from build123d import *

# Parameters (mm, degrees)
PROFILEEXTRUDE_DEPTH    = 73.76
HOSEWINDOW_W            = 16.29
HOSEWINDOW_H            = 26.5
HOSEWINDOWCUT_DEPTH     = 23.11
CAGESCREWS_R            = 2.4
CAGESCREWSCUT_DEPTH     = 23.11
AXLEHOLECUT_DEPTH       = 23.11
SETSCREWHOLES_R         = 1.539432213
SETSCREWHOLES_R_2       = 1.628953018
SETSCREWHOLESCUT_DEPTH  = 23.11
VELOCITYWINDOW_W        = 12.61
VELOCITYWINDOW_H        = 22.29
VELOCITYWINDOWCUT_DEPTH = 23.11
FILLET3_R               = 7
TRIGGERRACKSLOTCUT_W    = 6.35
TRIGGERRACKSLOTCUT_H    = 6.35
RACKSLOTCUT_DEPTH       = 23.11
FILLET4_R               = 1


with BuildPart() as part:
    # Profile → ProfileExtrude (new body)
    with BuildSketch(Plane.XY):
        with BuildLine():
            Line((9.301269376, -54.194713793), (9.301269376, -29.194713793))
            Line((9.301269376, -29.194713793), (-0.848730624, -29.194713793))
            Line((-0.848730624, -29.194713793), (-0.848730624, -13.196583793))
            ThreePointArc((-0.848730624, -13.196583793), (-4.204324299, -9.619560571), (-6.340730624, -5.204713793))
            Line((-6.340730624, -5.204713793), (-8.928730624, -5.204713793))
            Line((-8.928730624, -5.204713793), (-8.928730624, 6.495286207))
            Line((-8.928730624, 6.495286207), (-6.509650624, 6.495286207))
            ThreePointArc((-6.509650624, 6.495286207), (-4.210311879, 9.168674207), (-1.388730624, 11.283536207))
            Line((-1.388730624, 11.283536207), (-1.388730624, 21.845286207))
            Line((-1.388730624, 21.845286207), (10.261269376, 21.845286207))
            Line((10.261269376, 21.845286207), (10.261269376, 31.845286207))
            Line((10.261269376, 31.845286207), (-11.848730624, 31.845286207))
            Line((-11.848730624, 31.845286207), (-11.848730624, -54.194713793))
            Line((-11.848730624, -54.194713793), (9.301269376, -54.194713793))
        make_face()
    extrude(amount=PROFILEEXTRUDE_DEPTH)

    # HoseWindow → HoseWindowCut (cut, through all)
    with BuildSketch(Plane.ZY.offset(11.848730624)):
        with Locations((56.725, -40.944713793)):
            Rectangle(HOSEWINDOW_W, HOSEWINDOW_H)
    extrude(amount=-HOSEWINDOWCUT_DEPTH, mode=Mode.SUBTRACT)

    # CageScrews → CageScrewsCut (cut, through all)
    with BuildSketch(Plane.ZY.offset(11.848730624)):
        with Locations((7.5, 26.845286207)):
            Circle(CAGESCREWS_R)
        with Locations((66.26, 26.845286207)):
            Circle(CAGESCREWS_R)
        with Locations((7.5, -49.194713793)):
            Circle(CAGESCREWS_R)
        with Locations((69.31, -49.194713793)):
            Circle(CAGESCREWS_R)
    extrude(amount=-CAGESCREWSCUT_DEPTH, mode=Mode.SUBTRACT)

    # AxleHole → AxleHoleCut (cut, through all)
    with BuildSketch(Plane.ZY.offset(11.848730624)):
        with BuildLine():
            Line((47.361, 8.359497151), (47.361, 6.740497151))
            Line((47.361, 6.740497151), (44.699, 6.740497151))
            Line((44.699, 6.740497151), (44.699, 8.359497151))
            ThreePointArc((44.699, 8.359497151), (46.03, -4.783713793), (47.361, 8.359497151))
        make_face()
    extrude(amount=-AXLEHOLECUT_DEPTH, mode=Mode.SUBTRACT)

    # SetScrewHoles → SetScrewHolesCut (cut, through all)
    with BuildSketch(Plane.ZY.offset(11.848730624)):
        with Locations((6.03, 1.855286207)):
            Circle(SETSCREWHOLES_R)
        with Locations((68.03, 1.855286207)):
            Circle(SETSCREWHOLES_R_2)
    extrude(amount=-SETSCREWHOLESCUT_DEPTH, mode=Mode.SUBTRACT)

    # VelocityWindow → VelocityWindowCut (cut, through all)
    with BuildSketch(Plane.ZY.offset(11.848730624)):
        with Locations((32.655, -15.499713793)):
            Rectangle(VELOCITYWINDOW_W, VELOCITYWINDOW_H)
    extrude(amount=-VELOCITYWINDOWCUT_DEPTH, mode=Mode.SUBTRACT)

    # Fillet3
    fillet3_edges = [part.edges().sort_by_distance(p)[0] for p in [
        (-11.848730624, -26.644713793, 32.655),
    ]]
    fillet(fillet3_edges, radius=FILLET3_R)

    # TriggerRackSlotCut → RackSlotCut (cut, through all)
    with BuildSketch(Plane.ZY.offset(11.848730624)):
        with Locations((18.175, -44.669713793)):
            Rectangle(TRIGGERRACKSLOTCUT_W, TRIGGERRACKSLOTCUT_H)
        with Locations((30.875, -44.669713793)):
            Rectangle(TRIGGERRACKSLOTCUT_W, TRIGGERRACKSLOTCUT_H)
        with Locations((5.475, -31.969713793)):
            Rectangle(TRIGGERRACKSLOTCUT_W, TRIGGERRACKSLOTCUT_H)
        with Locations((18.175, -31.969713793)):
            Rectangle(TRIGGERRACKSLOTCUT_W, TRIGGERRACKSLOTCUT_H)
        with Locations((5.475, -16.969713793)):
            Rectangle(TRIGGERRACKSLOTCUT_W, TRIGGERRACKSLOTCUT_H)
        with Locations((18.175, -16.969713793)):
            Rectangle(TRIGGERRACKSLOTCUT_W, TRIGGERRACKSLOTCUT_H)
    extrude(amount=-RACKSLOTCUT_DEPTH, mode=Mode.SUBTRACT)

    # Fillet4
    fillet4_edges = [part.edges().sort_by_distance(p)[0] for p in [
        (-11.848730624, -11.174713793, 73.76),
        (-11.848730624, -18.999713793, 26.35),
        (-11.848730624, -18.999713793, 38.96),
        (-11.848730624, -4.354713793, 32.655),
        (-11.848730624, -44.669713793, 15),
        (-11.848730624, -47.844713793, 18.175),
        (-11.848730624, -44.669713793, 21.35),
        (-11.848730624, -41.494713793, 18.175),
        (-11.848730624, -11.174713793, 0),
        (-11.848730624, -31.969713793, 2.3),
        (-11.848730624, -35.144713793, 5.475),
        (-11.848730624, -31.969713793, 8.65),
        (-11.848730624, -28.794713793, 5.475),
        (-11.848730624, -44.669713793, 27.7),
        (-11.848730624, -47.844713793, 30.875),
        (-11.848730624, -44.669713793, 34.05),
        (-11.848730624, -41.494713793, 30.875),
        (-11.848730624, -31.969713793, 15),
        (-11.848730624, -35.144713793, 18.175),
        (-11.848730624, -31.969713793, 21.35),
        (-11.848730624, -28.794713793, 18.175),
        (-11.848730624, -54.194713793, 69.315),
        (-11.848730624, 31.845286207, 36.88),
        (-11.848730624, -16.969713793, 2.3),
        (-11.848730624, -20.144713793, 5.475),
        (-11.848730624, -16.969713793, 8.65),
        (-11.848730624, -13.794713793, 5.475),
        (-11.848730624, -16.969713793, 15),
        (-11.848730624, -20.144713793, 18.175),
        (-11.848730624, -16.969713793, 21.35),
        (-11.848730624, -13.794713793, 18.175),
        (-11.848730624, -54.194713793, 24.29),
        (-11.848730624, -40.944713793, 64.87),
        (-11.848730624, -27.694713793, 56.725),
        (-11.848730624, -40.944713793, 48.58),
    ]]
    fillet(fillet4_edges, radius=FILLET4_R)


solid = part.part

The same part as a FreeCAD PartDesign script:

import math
import FreeCAD as App
import Part
import Sketcher
from FreeCAD import Vector
Q = App.Units.Quantity


def edges_at(feature, points):
    """Names of the edges that pass closest to the given points."""
    edges = feature.Shape.Edges
    near = lambda p: min(range(len(edges)), key=lambda i: edges[i].distToShape(Part.Vertex(*p))[0])
    return sorted({f"Edge{near(p) + 1}" for p in points})


def add_polygon(sketch, points):
    """Adds a closed chain of lines whose ends are joined by coincident constraints."""
    first, n = sketch.GeometryCount, len(points)
    for a, b in zip(points, points[1:] + points[:1]):
        sketch.addGeometry(Part.LineSegment(App.Vector(*a, 0), App.Vector(*b, 0)), False)
    for i in range(n):
        sketch.addConstraint(Sketcher.Constraint("Coincident", first + i, 2, first + (i + 1) % n, 1))

doc = App.newDocument("Part")
params = doc.addObject("Spreadsheet::Sheet", "Params")
for row, (alias, value) in enumerate([
    ("sketch1_height", "25 mm"),
    ("sketch1_height2", "10 mm"),
    ("sketch1_height3", "11.7 mm"),
    ("sketch1_width", "10.15 mm"),
    ("sketch1_width2", "11.65 mm"),
    ("pad1_length", "73.76 mm"),
    ("sketch2_width", "26.5 mm"),
    ("sketch2_height", "16.29 mm"),
    ("sketch3_diameter", "4.8 mm"),
    ("sketch6_width", "22.29 mm"),
    ("sketch6_height", "12.61 mm"),
    ("fillet_radius", "7 mm"),
    ("sketch7_width", "6.35 mm"),
    ("fillet2_radius", "1 mm"),
], start=1):
    params.set(f"A{row}", alias)
    params.set(f"B{row}", "=" + value)
    params.setAlias(f"B{row}", alias)

body = doc.addObject("PartDesign::Body", "Body")

# Sketch on XY plane
sketch1 = body.newObject("Sketcher::SketchObject", "Sketch")
sketch1.AttachmentSupport = (doc.getObject("XY_Plane"), [""])
sketch1.MapMode = "FlatFace"
sketch1.addGeometry([
    Part.LineSegment(Vector(9.301269, -54.194714, 0), Vector(9.301269, -29.194714, 0)),  # 0
    Part.LineSegment(Vector(9.301269, -29.194714, 0), Vector(-0.848731, -29.194714, 0)),  # 1
    Part.LineSegment(Vector(-0.848731, -29.194714, 0), Vector(-0.848731, -13.196584, 0)),  # 2
    Part.ArcOfCircle(Part.Circle(Vector(9.197308, -0.409981, 0), Vector(0, 0, 1), 16.261), math.radians(-162.850803), math.radians(-128.155625)),  # 3
    Part.LineSegment(Vector(-6.340731, -5.204714, 0), Vector(-8.928731, -5.204714, 0)),  # 4
    Part.LineSegment(Vector(-8.928731, -5.204714, 0), Vector(-8.928731, 6.495286, 0)),  # 5
    Part.LineSegment(Vector(-8.928731, 6.495286, 0), Vector(-6.509651, 6.495286, 0)),  # 6
    Part.ArcOfCircle(Part.Circle(Vector(6.895676, -2.708917, 0), Vector(0, 0, 1), 16.261), math.radians(120.628184), math.radians(145.526201)),  # 7
    Part.LineSegment(Vector(-1.388731, 11.283536, 0), Vector(-1.388731, 21.845286, 0)),  # 8
    Part.LineSegment(Vector(-1.388731, 21.845286, 0), Vector(10.261269, 21.845286, 0)),  # 9
    Part.LineSegment(Vector(10.261269, 21.845286, 0), Vector(10.261269, 31.845286, 0)),  # 10
    Part.LineSegment(Vector(10.261269, 31.845286, 0), Vector(-11.848731, 31.845286, 0)),  # 11
    Part.LineSegment(Vector(-11.848731, 31.845286, 0), Vector(-11.848731, -54.194714, 0)),  # 12
    Part.LineSegment(Vector(-11.848731, -54.194714, 0), Vector(9.301269, -54.194714, 0)),  # 13
], False)
sketch1.addConstraint([
    Sketcher.Constraint("Coincident", 0, 2, 1, 1),
    Sketcher.Constraint("Coincident", 1, 2, 2, 1),
    Sketcher.Constraint("Coincident", 2, 2, 3, 2),
    Sketcher.Constraint("Coincident", 3, 1, 4, 1),
    Sketcher.Constraint("Coincident", 4, 2, 5, 1),
    Sketcher.Constraint("Coincident", 5, 2, 6, 1),
    Sketcher.Constraint("Coincident", 6, 2, 7, 2),
    Sketcher.Constraint("Coincident", 7, 1, 8, 1),
    Sketcher.Constraint("Coincident", 8, 2, 9, 1),
    Sketcher.Constraint("Coincident", 9, 2, 10, 1),
    Sketcher.Constraint("Coincident", 10, 2, 11, 1),
    Sketcher.Constraint("Coincident", 11, 2, 12, 1),
    Sketcher.Constraint("Coincident", 12, 2, 13, 1),
    Sketcher.Constraint("Coincident", 13, 2, 0, 1),
    Sketcher.Constraint("Vertical", 0),
    Sketcher.Constraint("Horizontal", 1),
    Sketcher.Constraint("Vertical", 2),
    Sketcher.Constraint("Horizontal", 4),
    Sketcher.Constraint("Vertical", 5),
    Sketcher.Constraint("Horizontal", 6),
    Sketcher.Constraint("Vertical", 8),
    Sketcher.Constraint("Horizontal", 9),
    Sketcher.Constraint("Vertical", 10),
    Sketcher.Constraint("Horizontal", 11),
    Sketcher.Constraint("Vertical", 12),
    Sketcher.Constraint("Horizontal", 13),
    Sketcher.Constraint("Equal", 3, 7),
    Sketcher.Constraint("DistanceY", 0, 1, 0, 2, Q("25 mm")),
    Sketcher.Constraint("DistanceY", 10, 1, 10, 2, Q("10 mm")),
    Sketcher.Constraint("DistanceY", 5, 1, 5, 2, Q("11.7 mm")),
    Sketcher.Constraint("Radius", 3, Q("16.261 mm")),
    Sketcher.Constraint("DistanceX", 12, 2, 1, 2, Q("11 mm")),
    Sketcher.Constraint("DistanceX", 1, 2, 1, 1, Q("10.15 mm")),
    Sketcher.Constraint("DistanceX", 9, 1, 9, 2, Q("11.65 mm")),
    Sketcher.Constraint("DistanceX", 11, 2, 11, 1, Q("22.11 mm")),
    Sketcher.Constraint("DistanceY", 12, 2, 12, 1, Q("86.04 mm")),
    Sketcher.Constraint("DistanceX", 4, 2, 4, 1, Q("2.588 mm")),
    Sketcher.Constraint("DistanceY", 1, 2, 3, 1, Q("23.99 mm")),
    Sketcher.Constraint("DistanceX", 4, 2, 2, 2, Q("8.08 mm")),
    Sketcher.Constraint("DistanceX", 6, 1, 6, 2, Q("2.41908 mm")),
    Sketcher.Constraint("DistanceY", 2, 1, 2, 2, Q("15.99813 mm")),
    Sketcher.Constraint("DistanceY", 8, 1, 8, 2, Q("10.56175 mm")),
    Sketcher.Constraint("DistanceX", -1, 1, 3, 3, Q("9.197308 mm")),
    Sketcher.Constraint("DistanceY", 3, 3, -1, 1, Q("0.409981 mm")),
])
sketch1.setExpression("Constraints[27]", "Params.sketch1_height")
sketch1.setExpression("Constraints[28]", "Params.sketch1_height2")
sketch1.setExpression("Constraints[29]", "Params.sketch1_height3")
sketch1.setExpression("Constraints[32]", "Params.sketch1_width")
sketch1.setExpression("Constraints[33]", "Params.sketch1_width2")
pad1 = body.newObject("PartDesign::Pad", "Pad")
pad1.Profile = sketch1
pad1.setExpression("Length", "Params.pad1_length")

# Sketch on YZ plane
sketch2 = body.newObject("Sketcher::SketchObject", "Sketch001")
sketch2.AttachmentSupport = (doc.getObject("YZ_Plane"), [""])
sketch2.MapMode = "FlatFace"
sketch2.AttachmentOffset = App.Placement(Vector(0, 0, -11.848731), App.Rotation())
add_polygon(sketch2, [(-27.694714, 48.58), (-54.194714, 48.58), (-54.194714, 64.87), (-27.694714, 64.87)])  # lines 0-3
sketch2.addConstraint([
    Sketcher.Constraint("Horizontal", 0),
    Sketcher.Constraint("Vertical", 1),
    Sketcher.Constraint("Horizontal", 2),
    Sketcher.Constraint("Vertical", 3),
    Sketcher.Constraint("DistanceX", 0, 2, 0, 1, Q("26.5 mm")),
    Sketcher.Constraint("DistanceY", 1, 1, 1, 2, Q("16.29 mm")),
    Sketcher.Constraint("DistanceY", -1, 1, 0, 2, Q("48.58 mm")),
    Sketcher.Constraint("DistanceX", 0, 2, -1, 1, Q("54.194714 mm")),
])
sketch2.setExpression("Constraints[8]", "Params.sketch2_width")
sketch2.setExpression("Constraints[9]", "Params.sketch2_height")
pocket1 = body.newObject("PartDesign::Pocket", "Pocket")
pocket1.Profile = sketch2
pocket1.Type = "ThroughAll"
pocket1.Reversed = True

# Sketch on YZ plane
sketch3 = body.newObject("Sketcher::SketchObject", "Sketch002")
sketch3.AttachmentSupport = (doc.getObject("YZ_Plane"), [""])
sketch3.MapMode = "FlatFace"
sketch3.AttachmentOffset = App.Placement(Vector(0, 0, -11.848731), App.Rotation())
sketch3.addGeometry([
    Part.Circle(Vector(26.845286, 7.5, 0), Vector(0, 0, 1), 2.4),
    Part.Circle(Vector(26.845286, 66.26, 0), Vector(0, 0, 1), 2.4),
    Part.Circle(Vector(-49.194714, 7.5, 0), Vector(0, 0, 1), 2.4),
    Part.Circle(Vector(-49.194714, 69.31, 0), Vector(0, 0, 1), 2.4),
], False)
sketch3.addConstraint([
    Sketcher.Constraint("Equal", 0, 1),
    Sketcher.Constraint("Equal", 1, 2),
    Sketcher.Constraint("Equal", 2, 3),
    Sketcher.Constraint("Horizontal", 0, 3, 2, 3),
    Sketcher.Constraint("Vertical", 0, 3, 1, 3),
    Sketcher.Constraint("Vertical", 2, 3, 3, 3),
    Sketcher.Constraint("Diameter", 0, Q("4.8 mm")),
    Sketcher.Constraint("DistanceY", -1, 1, 0, 3, Q("7.5 mm")),
    Sketcher.Constraint("DistanceY", -1, 1, 1, 3, Q("66.26 mm")),
    Sketcher.Constraint("DistanceY", -1, 1, 3, 3, Q("69.31 mm")),
    Sketcher.Constraint("DistanceX", 2, 3, 0, 3, Q("76.04 mm")),
    Sketcher.Constraint("DistanceX", -1, 1, 0, 3, Q("26.845286 mm")),
])
sketch3.setExpression("Constraints[6]", "Params.sketch3_diameter")
pocket2 = body.newObject("PartDesign::Pocket", "Pocket001")
pocket2.Profile = sketch3
pocket2.Type = "ThroughAll"
pocket2.Reversed = True

# Sketch on YZ plane
sketch4 = body.newObject("Sketcher::SketchObject", "Sketch003")
sketch4.AttachmentSupport = (doc.getObject("YZ_Plane"), [""])
sketch4.MapMode = "FlatFace"
sketch4.AttachmentOffset = App.Placement(Vector(0, 0, -11.848731), App.Rotation())
sketch4.addGeometry([
    Part.LineSegment(Vector(8.359497, 47.361, 0), Vector(6.740497, 47.361, 0)),
    Part.LineSegment(Vector(6.740497, 47.361, 0), Vector(6.740497, 44.699, 0)),
    Part.LineSegment(Vector(6.740497, 44.699, 0), Vector(8.359497, 44.699, 0)),
    Part.ArcOfCircle(Part.Circle(Vector(1.855286, 46.03, 0), Vector(0, 0, 1), 6.639), math.radians(11.565147), math.radians(348.434853)),
], False)
sketch4.addConstraint([
    Sketcher.Constraint("Coincident", 0, 2, 1, 1),
    Sketcher.Constraint("Coincident", 1, 2, 2, 1),
    Sketcher.Constraint("Coincident", 2, 2, 3, 2),
    Sketcher.Constraint("Coincident", 3, 1, 0, 1),
    Sketcher.Constraint("Horizontal", 0),
    Sketcher.Constraint("Vertical", 1),
    Sketcher.Constraint("Horizontal", 2),
    Sketcher.Constraint("Vertical", 2, 2, 3, 1),
    Sketcher.Constraint("Radius", 3, Q("6.639 mm")),
    Sketcher.Constraint("DistanceX", 0, 2, 0, 1, Q("1.619 mm")),
    Sketcher.Constraint("DistanceY", 1, 2, 1, 1, Q("2.662 mm")),
    Sketcher.Constraint("DistanceY", -1, 1, 3, 3, Q("46.03 mm")),
    Sketcher.Constraint("DistanceX", -1, 1, 3, 3, Q("1.855286 mm")),
])
pocket3 = body.newObject("PartDesign::Pocket", "Pocket002")
pocket3.Profile = sketch4
pocket3.Type = "ThroughAll"
pocket3.Reversed = True

# Sketch on YZ plane
sketch5 = body.newObject("Sketcher::SketchObject", "Sketch004")
sketch5.AttachmentSupport = (doc.getObject("YZ_Plane"), [""])
sketch5.MapMode = "FlatFace"
sketch5.AttachmentOffset = App.Placement(Vector(0, 0, -11.848731), App.Rotation())
sketch5.addGeometry([
    Part.Circle(Vector(1.855286, 6.03, 0), Vector(0, 0, 1), 1.539432),
    Part.Circle(Vector(1.855286, 68.03, 0), Vector(0, 0, 1), 1.628953),
], False)
sketch5.addConstraint([
    Sketcher.Constraint("Vertical", 0, 3, 1, 3),
    Sketcher.Constraint("DistanceY", 0, 3, 1, 3, Q("62 mm")),
    Sketcher.Constraint("DistanceY", -1, 1, 0, 3, Q("6.03 mm")),
    Sketcher.Constraint("Diameter", 0, Q("3.078864 mm")),
    Sketcher.Constraint("Diameter", 1, Q("3.257906 mm")),
    Sketcher.Constraint("DistanceX", -1, 1, 0, 3, Q("1.855286 mm")),
])
pocket4 = body.newObject("PartDesign::Pocket", "Pocket003")
pocket4.Profile = sketch5
pocket4.Type = "ThroughAll"
pocket4.Reversed = True

# Sketch on YZ plane
sketch6 = body.newObject("Sketcher::SketchObject", "Sketch005")
sketch6.AttachmentSupport = (doc.getObject("YZ_Plane"), [""])
sketch6.MapMode = "FlatFace"
sketch6.AttachmentOffset = App.Placement(Vector(0, 0, -11.848731), App.Rotation())
add_polygon(sketch6, [(-4.354714, 26.35), (-26.644714, 26.35), (-26.644714, 38.96), (-4.354714, 38.96)])  # lines 0-3
sketch6.addConstraint([
    Sketcher.Constraint("Horizontal", 0),
    Sketcher.Constraint("Vertical", 1),
    Sketcher.Constraint("Horizontal", 2),
    Sketcher.Constraint("Vertical", 3),
    Sketcher.Constraint("DistanceX", 0, 2, 0, 1, Q("22.29 mm")),
    Sketcher.Constraint("DistanceY", 1, 1, 1, 2, Q("12.61 mm")),
    Sketcher.Constraint("DistanceY", -1, 1, 0, 2, Q("26.35 mm")),
    Sketcher.Constraint("DistanceX", 0, 2, -1, 1, Q("26.644714 mm")),
])
sketch6.setExpression("Constraints[8]", "Params.sketch6_width")
sketch6.setExpression("Constraints[9]", "Params.sketch6_height")
pocket5 = body.newObject("PartDesign::Pocket", "Pocket004")
pocket5.Profile = sketch6
pocket5.Type = "ThroughAll"
pocket5.Reversed = True
doc.recompute()

fillet = body.newObject("PartDesign::Fillet", "Fillet")
fillet.Base = (pocket5, edges_at(pocket5, [(-11.849, -26.645, 32.655)]))
fillet.setExpression("Radius", "Params.fillet_radius")

# Sketch on YZ plane
sketch7 = body.newObject("Sketcher::SketchObject", "Sketch006")
sketch7.AttachmentSupport = (doc.getObject("YZ_Plane"), [""])
sketch7.MapMode = "FlatFace"
sketch7.AttachmentOffset = App.Placement(Vector(0, 0, -11.848731), App.Rotation())
add_polygon(sketch7, [(-41.494714, 15), (-47.844714, 15), (-47.844714, 21.35), (-41.494714, 21.35)])  # lines 0-3
add_polygon(sketch7, [(-41.494714, 27.7), (-47.844714, 27.7), (-47.844714, 34.05), (-41.494714, 34.05)])  # lines 4-7
add_polygon(sketch7, [(-28.794714, 2.3), (-35.144714, 2.3), (-35.144714, 8.65), (-28.794714, 8.65)])  # lines 8-11
add_polygon(sketch7, [(-28.794714, 15), (-35.144714, 15), (-35.144714, 21.35), (-28.794714, 21.35)])  # lines 12-15
add_polygon(sketch7, [(-13.794714, 2.3), (-20.144714, 2.3), (-20.144714, 8.65), (-13.794714, 8.65)])  # lines 16-19
add_polygon(sketch7, [(-13.794714, 15), (-20.144714, 15), (-20.144714, 21.35), (-13.794714, 21.35)])  # lines 20-23
sketch7.addConstraint([
    Sketcher.Constraint("Horizontal", 0),
    Sketcher.Constraint("Vertical", 1),
    Sketcher.Constraint("Horizontal", 2),
    Sketcher.Constraint("Vertical", 3),
    Sketcher.Constraint("Horizontal", 4),
    Sketcher.Constraint("Vertical", 5),
    Sketcher.Constraint("Horizontal", 6),
    Sketcher.Constraint("Vertical", 7),
    Sketcher.Constraint("Horizontal", 8),
    Sketcher.Constraint("Vertical", 9),
    Sketcher.Constraint("Horizontal", 10),
    Sketcher.Constraint("Vertical", 11),
    Sketcher.Constraint("Horizontal", 12),
    Sketcher.Constraint("Vertical", 13),
    Sketcher.Constraint("Horizontal", 14),
    Sketcher.Constraint("Vertical", 15),
    Sketcher.Constraint("Horizontal", 16),
    Sketcher.Constraint("Vertical", 17),
    Sketcher.Constraint("Horizontal", 18),
    Sketcher.Constraint("Vertical", 19),
    Sketcher.Constraint("Horizontal", 20),
    Sketcher.Constraint("Vertical", 21),
    Sketcher.Constraint("Horizontal", 22),
    Sketcher.Constraint("Vertical", 23),
    Sketcher.Constraint("Horizontal", 3, 2, 12, 2),
    Sketcher.Constraint("Horizontal", 2, 2, 13, 2),
    Sketcher.Constraint("Horizontal", 11, 2, 16, 2),
    Sketcher.Constraint("Horizontal", 10, 2, 17, 2),
    Sketcher.Constraint("Horizontal", 15, 2, 20, 2),
    Sketcher.Constraint("Horizontal", 14, 2, 21, 2),
    Sketcher.Constraint("Vertical", 1, 2, 4, 2),
    Sketcher.Constraint("Vertical", 3, 2, 6, 2),
    Sketcher.Constraint("Vertical", 9, 2, 12, 2),
    Sketcher.Constraint("Vertical", 11, 2, 14, 2),
    Sketcher.Constraint("Vertical", 17, 2, 20, 2),
    Sketcher.Constraint("Vertical", 19, 2, 22, 2),
    Sketcher.Constraint("Equal", 6, 8),
    Sketcher.Constraint("Equal", 14, 16),
    Sketcher.Constraint("Equal", 22, 1),
    Sketcher.Constraint("Equal", 3, 5),
    Sketcher.Constraint("Equal", 7, 9),
    Sketcher.Constraint("DistanceY", -1, 1, 0, 2, Q("15 mm")),
    Sketcher.Constraint("DistanceX", 8, 2, 16, 2, Q("15 mm")),
    Sketcher.Constraint("DistanceX", 0, 2, 0, 1, Q("6.35 mm")),
    Sketcher.Constraint("DistanceY", -1, 1, 4, 2, Q("27.7 mm")),
    Sketcher.Constraint("DistanceY", -1, 1, 8, 2, Q("2.3 mm")),
    Sketcher.Constraint("DistanceX", 0, 2, 8, 2, Q("12.7 mm")),
    Sketcher.Constraint("DistanceX", 0, 2, -1, 1, Q("47.844714 mm")),
])
sketch7.setExpression("Constraints[67]", "Params.sketch7_width")
pocket6 = body.newObject("PartDesign::Pocket", "Pocket005")
pocket6.Profile = sketch7
pocket6.Type = "ThroughAll"
pocket6.Reversed = True
doc.recompute()

fillet2 = body.newObject("PartDesign::Fillet", "Fillet001")
fillet2.Base = (pocket6, edges_at(pocket6, [
    (-11.849, -11.175, 73.76),
    (-11.849, -19, 26.35),
    (-11.849, -19, 38.96),
    (-11.849, -4.355, 32.655),
    (-11.849, -44.67, 15),
    (-11.849, -47.845, 18.175),
    (-11.849, -44.67, 21.35),
    (-11.849, -41.495, 18.175),
    (-11.849, -11.175, 0),
    (-11.849, -31.97, 2.3),
    (-11.849, -35.145, 5.475),
    (-11.849, -31.97, 8.65),
    (-11.849, -28.795, 5.475),
    (-11.849, -44.67, 27.7),
    (-11.849, -47.845, 30.875),
    (-11.849, -44.67, 34.05),
    (-11.849, -41.495, 30.875),
    (-11.849, -31.97, 15),
    (-11.849, -35.145, 18.175),
    (-11.849, -31.97, 21.35),
    (-11.849, -28.795, 18.175),
    (-11.849, -54.195, 69.315),
    (-11.849, 31.845, 36.88),
    (-11.849, -16.97, 2.3),
    (-11.849, -20.145, 5.475),
    (-11.849, -16.97, 8.65),
    (-11.849, -13.795, 5.475),
    (-11.849, -16.97, 15),
    (-11.849, -20.145, 18.175),
    (-11.849, -16.97, 21.35),
    (-11.849, -13.795, 18.175),
    (-11.849, -54.195, 24.29),
    (-11.849, -40.945, 64.87),
    (-11.849, -27.695, 56.725),
    (-11.849, -40.945, 48.58),
]))
fillet2.setExpression("Radius", "Params.fillet2_radius")

doc.recompute()
